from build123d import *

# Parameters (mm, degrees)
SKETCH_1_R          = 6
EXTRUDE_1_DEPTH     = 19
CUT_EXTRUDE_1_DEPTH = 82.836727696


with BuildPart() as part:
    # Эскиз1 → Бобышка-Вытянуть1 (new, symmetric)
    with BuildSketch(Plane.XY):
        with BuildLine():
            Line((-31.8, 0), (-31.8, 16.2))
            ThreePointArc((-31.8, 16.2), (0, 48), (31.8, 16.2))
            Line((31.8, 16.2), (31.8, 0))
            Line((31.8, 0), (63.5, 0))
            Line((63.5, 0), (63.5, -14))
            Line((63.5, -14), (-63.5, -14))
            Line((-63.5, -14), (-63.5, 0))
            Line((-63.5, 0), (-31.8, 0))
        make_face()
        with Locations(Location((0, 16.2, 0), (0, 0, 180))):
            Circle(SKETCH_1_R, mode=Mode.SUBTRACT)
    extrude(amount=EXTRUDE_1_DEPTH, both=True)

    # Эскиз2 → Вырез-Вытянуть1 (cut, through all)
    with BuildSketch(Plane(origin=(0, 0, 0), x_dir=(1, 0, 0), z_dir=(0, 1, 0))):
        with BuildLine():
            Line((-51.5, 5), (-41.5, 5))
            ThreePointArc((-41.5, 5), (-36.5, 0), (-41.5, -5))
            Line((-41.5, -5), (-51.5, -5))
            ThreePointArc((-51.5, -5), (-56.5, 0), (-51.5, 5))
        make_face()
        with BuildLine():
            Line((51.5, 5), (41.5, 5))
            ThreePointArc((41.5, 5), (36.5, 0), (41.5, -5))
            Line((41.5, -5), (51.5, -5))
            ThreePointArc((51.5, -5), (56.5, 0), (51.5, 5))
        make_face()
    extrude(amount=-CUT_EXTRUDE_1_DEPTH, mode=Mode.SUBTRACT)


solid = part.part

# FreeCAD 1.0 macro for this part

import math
import FreeCAD as App
import Part
import Sketcher
Q = App.Units.Quantity

doc = App.newDocument("Part")
body = doc.addObject("PartDesign::Body", "Body")

# Sketch on XY plane
sketch1 = doc.addObject("Sketcher::SketchObject", "Sketch")
body.addObject(sketch1)
sketch1.AttachmentSupport = (doc.XY_Plane, [""])
sketch1.MapMode = "FlatFace"
sketch1.addGeometry(Part.LineSegment(App.Vector(-32, 16, 0), App.Vector(-32, 0, 0)), False)
sketch1.addGeometry(Part.LineSegment(App.Vector(-32, 0, 0), App.Vector(-64, 0, 0)), False)
sketch1.addGeometry(Part.LineSegment(App.Vector(-64, 0, 0), App.Vector(-64, -14, 0)), False)
sketch1.addGeometry(Part.LineSegment(App.Vector(-64, -14, 0), App.Vector(64, -14, 0)), False)
sketch1.addGeometry(Part.LineSegment(App.Vector(64, -14, 0), App.Vector(64, 0, 0)), False)
sketch1.addGeometry(Part.LineSegment(App.Vector(64, 0, 0), App.Vector(32, 0, 0)), False)
sketch1.addGeometry(Part.LineSegment(App.Vector(32, 0, 0), App.Vector(32, 16, 0)), False)
sketch1.addGeometry(Part.ArcOfCircle(Part.Circle(App.Vector(0, 16, 0), App.Vector(0, 0, 1), 32), math.radians(0), math.radians(180)), False)
sketch1.addGeometry(Part.Circle(App.Vector(0, 16, 0), App.Vector(0, 0, 1), 6), False)
sketch1.addConstraint(Sketcher.Constraint("Coincident", 0, 2, 1, 1))
sketch1.addConstraint(Sketcher.Constraint("Coincident", 1, 2, 2, 1))
sketch1.addConstraint(Sketcher.Constraint("Coincident", 2, 2, 3, 1))
sketch1.addConstraint(Sketcher.Constraint("Coincident", 3, 2, 4, 1))
sketch1.addConstraint(Sketcher.Constraint("Coincident", 4, 2, 5, 1))
sketch1.addConstraint(Sketcher.Constraint("Coincident", 5, 2, 6, 1))
sketch1.addConstraint(Sketcher.Constraint("Tangent", 6, 2, 7, 1))
sketch1.addConstraint(Sketcher.Constraint("Tangent", 7, 2, 0, 1))
sketch1.addConstraint(Sketcher.Constraint("Vertical", 0))
sketch1.addConstraint(Sketcher.Constraint("Horizontal", 1))
sketch1.addConstraint(Sketcher.Constraint("Vertical", 2))
sketch1.addConstraint(Sketcher.Constraint("Horizontal", 3))
sketch1.addConstraint(Sketcher.Constraint("Vertical", 4))
sketch1.addConstraint(Sketcher.Constraint("Horizontal", 5))
sketch1.addConstraint(Sketcher.Constraint("Vertical", 6))
sketch1.addConstraint(Sketcher.Constraint("Coincident", 8, 3, 7, 3))
sketch1.addConstraint(Sketcher.Constraint("Symmetric", 1, 2, 4, 2, -1, 1))
sketch1.addConstraint(Sketcher.Constraint("Symmetric", 0, 2, 5, 2, -2))
sketch1.addConstraint(Sketcher.Constraint("Diameter", 8, Q("12 mm")))
sketch1.addConstraint(Sketcher.Constraint("Radius", 7, Q("31.8 mm")))
sketch1.addConstraint(Sketcher.Constraint("DistanceX", 3, 1, 3, 2, Q("127 mm")))
sketch1.addConstraint(Sketcher.Constraint("DistanceY", 2, 2, 2, 1, Q("14 mm")))
sketch1.addConstraint(Sketcher.Constraint("DistanceY", 0, 2, 0, 1, Q("16.2 mm")))
pad1 = doc.addObject("PartDesign::Pad", "Pad")
body.addObject(pad1)
pad1.Profile = sketch1
pad1.Length = 38
pad1.Midplane = True

# Sketch on XZ plane
sketch2 = doc.addObject("Sketcher::SketchObject", "Sketch001")
body.addObject(sketch2)
sketch2.AttachmentSupport = (doc.XZ_Plane, [""])
sketch2.MapMode = "FlatFace"
sketch2.addGeometry(Part.LineSegment(App.Vector(-42, -5, 0), App.Vector(-52, -5, 0)), False)
sketch2.addGeometry(Part.ArcOfCircle(Part.Circle(App.Vector(-52, 0, 0), App.Vector(0, 0, 1), 5), math.radians(90), math.radians(270)), False)
sketch2.addGeometry(Part.LineSegment(App.Vector(-52, 5, 0), App.Vector(-42, 5, 0)), False)
sketch2.addGeometry(Part.ArcOfCircle(Part.Circle(App.Vector(-42, 0, 0), App.Vector(0, 0, 1), 5), math.radians(-90), math.radians(90)), False)
sketch2.addGeometry(Part.LineSegment(App.Vector(52, -5, 0), App.Vector(42, -5, 0)), False)
sketch2.addGeometry(Part.ArcOfCircle(Part.Circle(App.Vector(42, 0, 0), App.Vector(0, 0, 1), 5), math.radians(90), math.radians(270)), False)
sketch2.addGeometry(Part.LineSegment(App.Vector(42, 5, 0), App.Vector(52, 5, 0)), False)
sketch2.addGeometry(Part.ArcOfCircle(Part.Circle(App.Vector(52, 0, 0), App.Vector(0, 0, 1), 5), math.radians(-90), math.radians(90)), False)
sketch2.addConstraint(Sketcher.Constraint("Tangent", 0, 2, 1, 2))
sketch2.addConstraint(Sketcher.Constraint("Tangent", 1, 1, 2, 1))
sketch2.addConstraint(Sketcher.Constraint("Tangent", 2, 2, 3, 2))
sketch2.addConstraint(Sketcher.Constraint("Tangent", 3, 1, 0, 1))
sketch2.addConstraint(Sketcher.Constraint("Tangent", 4, 2, 5, 2))
sketch2.addConstraint(Sketcher.Constraint("Tangent", 5, 1, 6, 1))
sketch2.addConstraint(Sketcher.Constraint("Tangent", 6, 2, 7, 2))
sketch2.addConstraint(Sketcher.Constraint("Tangent", 7, 1, 4, 1))
sketch2.addConstraint(Sketcher.Constraint("Horizontal", 0))
sketch2.addConstraint(Sketcher.Constraint("Horizontal", 2))
sketch2.addConstraint(Sketcher.Constraint("Horizontal", 4))
sketch2.addConstraint(Sketcher.Constraint("Horizontal", 6))
sketch2.addConstraint(Sketcher.Constraint("Equal", 3, 5))
sketch2.addConstraint(Sketcher.Constraint("Symmetric", 3, 3, 5, 3, -1, 1))
sketch2.addConstraint(Sketcher.Constraint("Symmetric", 1, 3, 7, 3, -2))
sketch2.addConstraint(Sketcher.Constraint("Radius", 1, Q("5 mm")))
sketch2.addConstraint(Sketcher.Constraint("DistanceX", 0, 2, 0, 1, Q("10 mm")))
sketch2.addConstraint(Sketcher.Constraint("DistanceX", 3, 3, 5, 3, Q("83 mm")))
pocket1 = doc.addObject("PartDesign::Pocket", "Pocket")
body.addObject(pocket1)
pocket1.Profile = sketch2
pocket1.Type = "ThroughAll"
pocket1.Reversed = True

doc.recompute()
